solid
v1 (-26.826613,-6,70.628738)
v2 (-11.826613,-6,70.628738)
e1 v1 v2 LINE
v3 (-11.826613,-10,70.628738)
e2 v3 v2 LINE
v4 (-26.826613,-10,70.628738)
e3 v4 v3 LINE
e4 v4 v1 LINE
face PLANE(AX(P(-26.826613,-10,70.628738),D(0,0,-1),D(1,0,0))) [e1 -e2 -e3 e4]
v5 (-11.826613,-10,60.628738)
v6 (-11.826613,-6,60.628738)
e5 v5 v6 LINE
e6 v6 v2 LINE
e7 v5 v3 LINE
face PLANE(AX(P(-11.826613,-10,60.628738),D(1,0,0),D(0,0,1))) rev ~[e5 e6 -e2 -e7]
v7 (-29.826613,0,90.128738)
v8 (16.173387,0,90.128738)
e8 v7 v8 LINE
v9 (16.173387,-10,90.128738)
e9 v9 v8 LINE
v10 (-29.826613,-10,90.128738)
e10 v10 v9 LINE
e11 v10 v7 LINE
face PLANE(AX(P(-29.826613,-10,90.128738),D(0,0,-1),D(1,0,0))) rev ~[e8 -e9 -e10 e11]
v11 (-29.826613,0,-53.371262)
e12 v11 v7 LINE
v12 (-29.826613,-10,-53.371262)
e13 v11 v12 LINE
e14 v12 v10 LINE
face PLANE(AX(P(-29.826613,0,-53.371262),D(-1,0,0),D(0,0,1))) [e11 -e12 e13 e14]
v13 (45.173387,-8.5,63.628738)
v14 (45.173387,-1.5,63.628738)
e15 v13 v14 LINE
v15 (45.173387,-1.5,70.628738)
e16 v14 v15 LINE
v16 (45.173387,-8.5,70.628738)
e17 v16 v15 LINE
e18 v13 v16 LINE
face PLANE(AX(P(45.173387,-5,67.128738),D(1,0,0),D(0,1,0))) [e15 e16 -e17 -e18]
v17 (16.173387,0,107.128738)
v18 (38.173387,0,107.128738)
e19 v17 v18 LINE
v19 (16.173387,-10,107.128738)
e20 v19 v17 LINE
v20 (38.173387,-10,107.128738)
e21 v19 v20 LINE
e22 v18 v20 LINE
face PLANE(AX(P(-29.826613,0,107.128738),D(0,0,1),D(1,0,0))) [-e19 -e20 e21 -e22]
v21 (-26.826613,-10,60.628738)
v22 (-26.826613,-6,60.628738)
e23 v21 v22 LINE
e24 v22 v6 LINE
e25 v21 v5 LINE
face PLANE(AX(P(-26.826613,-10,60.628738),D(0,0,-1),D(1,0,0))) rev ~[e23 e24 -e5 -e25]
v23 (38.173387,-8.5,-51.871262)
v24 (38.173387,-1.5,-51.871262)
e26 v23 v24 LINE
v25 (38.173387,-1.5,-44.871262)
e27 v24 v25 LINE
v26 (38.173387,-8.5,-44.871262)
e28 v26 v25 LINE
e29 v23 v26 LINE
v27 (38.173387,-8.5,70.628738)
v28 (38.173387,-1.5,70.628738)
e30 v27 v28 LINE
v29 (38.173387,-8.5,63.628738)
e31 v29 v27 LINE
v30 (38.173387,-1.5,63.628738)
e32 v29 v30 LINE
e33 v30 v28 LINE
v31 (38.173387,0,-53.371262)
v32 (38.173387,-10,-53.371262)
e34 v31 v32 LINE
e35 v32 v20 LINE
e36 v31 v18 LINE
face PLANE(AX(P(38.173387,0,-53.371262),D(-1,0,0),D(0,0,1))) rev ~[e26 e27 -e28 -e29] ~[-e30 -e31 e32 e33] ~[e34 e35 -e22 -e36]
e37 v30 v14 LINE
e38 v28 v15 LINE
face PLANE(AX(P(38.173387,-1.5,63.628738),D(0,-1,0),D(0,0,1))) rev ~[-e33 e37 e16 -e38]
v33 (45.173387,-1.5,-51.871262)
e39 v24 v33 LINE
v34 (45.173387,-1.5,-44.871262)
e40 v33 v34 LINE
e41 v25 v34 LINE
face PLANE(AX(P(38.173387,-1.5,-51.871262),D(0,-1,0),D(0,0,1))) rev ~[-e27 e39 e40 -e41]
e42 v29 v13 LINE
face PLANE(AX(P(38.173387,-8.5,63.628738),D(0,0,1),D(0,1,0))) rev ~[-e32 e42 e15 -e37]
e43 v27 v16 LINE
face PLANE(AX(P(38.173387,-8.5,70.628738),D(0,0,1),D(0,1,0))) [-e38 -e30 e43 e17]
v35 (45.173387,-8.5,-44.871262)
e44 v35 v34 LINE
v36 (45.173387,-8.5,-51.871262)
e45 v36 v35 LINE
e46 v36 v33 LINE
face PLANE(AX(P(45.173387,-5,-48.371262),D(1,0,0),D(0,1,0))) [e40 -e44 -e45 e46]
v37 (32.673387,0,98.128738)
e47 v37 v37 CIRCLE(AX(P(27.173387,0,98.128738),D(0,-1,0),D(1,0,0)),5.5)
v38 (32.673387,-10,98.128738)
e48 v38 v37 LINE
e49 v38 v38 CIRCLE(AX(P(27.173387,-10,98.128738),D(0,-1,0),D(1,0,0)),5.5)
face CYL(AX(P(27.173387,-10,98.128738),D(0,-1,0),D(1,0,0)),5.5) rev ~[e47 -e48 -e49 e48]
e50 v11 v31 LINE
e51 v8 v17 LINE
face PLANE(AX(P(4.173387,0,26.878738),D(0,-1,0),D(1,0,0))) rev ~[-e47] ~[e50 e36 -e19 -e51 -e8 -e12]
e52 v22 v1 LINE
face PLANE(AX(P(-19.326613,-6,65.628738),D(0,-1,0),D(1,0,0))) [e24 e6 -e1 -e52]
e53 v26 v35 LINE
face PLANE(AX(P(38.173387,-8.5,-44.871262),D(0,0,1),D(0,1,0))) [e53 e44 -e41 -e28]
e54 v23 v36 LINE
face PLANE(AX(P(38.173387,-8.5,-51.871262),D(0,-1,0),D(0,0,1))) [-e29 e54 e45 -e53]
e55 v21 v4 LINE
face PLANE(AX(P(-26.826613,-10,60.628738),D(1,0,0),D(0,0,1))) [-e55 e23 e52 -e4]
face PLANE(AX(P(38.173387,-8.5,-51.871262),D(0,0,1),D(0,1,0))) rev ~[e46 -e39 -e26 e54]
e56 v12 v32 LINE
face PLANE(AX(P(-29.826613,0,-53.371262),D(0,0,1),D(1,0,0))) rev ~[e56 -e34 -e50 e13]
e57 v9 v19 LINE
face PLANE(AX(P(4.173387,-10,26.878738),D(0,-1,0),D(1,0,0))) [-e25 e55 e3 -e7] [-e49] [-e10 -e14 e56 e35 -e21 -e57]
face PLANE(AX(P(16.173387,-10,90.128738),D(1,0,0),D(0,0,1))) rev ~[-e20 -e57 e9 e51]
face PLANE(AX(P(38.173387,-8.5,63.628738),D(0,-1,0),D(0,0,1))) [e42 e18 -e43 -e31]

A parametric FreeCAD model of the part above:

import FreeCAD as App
import Part
import Sketcher

V = App.Vector
Q = App.Units.Quantity

doc = App.newDocument("Part")
body = doc.addObject("PartDesign::Body", "Body")

sketch1 = body.newObject("Sketcher::SketchObject", "Sketch")
sketch1.AttachmentSupport = (doc.getObject("XZ_Plane"), [""])
sketch1.MapMode = "FlatFace"
sketch1.addGeometry(Part.LineSegment(V(-30, 107, 0), V(-30, -53, 0)), False)
sketch1.addGeometry(Part.LineSegment(V(-30, -53, 0), V(38, -53, 0)), False)
sketch1.addGeometry(Part.LineSegment(V(38, -53, 0), V(38, 107, 0)), False)
sketch1.addGeometry(Part.LineSegment(V(38, 107, 0), V(-30, 107, 0)), False)
sketch1.addConstraint(Sketcher.Constraint("Coincident", 0, 2, 1, 1))
sketch1.addConstraint(Sketcher.Constraint("Coincident", 1, 2, 2, 1))
sketch1.addConstraint(Sketcher.Constraint("Coincident", 2, 2, 3, 1))
sketch1.addConstraint(Sketcher.Constraint("Coincident", 3, 2, 0, 1))
sketch1.addConstraint(Sketcher.Constraint("Vertical", 0))
sketch1.addConstraint(Sketcher.Constraint("Horizontal", 1))
sketch1.addConstraint(Sketcher.Constraint("Vertical", 2))
sketch1.addConstraint(Sketcher.Constraint("Horizontal", 3))
sketch1.addConstraint(Sketcher.Constraint("DistanceX", 1, 1, 1, 2, Q("68 mm")))
sketch1.addConstraint(Sketcher.Constraint("DistanceY", 0, 2, 0, 1, Q("160.5 mm")))
sketch1.addConstraint(Sketcher.Constraint("DistanceY", -1, 1, 2, 2, Q("107.128738 mm")))
sketch1.addConstraint(Sketcher.Constraint("DistanceX", 0, 2, -1, 1, Q("29.826613 mm")))
pad1 = body.newObject("PartDesign::Pad", "Pad")
pad1.Profile = sketch1
pad1.Length = 10

sketch2 = body.newObject("Sketcher::SketchObject", "Sketch001")
sketch2.AttachmentSupport = (doc.getObject("XZ_Plane"), [""])
sketch2.MapMode = "FlatFace"
sketch2.AttachmentOffset = App.Placement(V(0, 0, 10), App.Rotation())
sketch2.addGeometry(Part.LineSegment(V(-30, 107, 0), V(-30, 90, 0)), False)
sketch2.addGeometry(Part.LineSegment(V(-30, 90, 0), V(16, 90, 0)), False)
sketch2.addGeometry(Part.LineSegment(V(16, 90, 0), V(16, 107, 0)), False)
sketch2.addGeometry(Part.LineSegment(V(16, 107, 0), V(-30, 107, 0)), False)
sketch2.addConstraint(Sketcher.Constraint("Coincident", 0, 2, 1, 1))
sketch2.addConstraint(Sketcher.Constraint("Coincident", 1, 2, 2, 1))
sketch2.addConstraint(Sketcher.Constraint("Coincident", 2, 2, 3, 1))
sketch2.addConstraint(Sketcher.Constraint("Coincident", 3, 2, 0, 1))
sketch2.addConstraint(Sketcher.Constraint("Vertical", 0))
sketch2.addConstraint(Sketcher.Constraint("Horizontal", 1))
sketch2.addConstraint(Sketcher.Constraint("Vertical", 2))
sketch2.addConstraint(Sketcher.Constraint("Horizontal", 3))
sketch2.addConstraint(Sketcher.Constraint("DistanceX", 1, 1, 1, 2, Q("46 mm")))
sketch2.addConstraint(Sketcher.Constraint("DistanceY", 0, 2, 0, 1, Q("17 mm")))
sketch2.addConstraint(Sketcher.Constraint("DistanceY", -1, 1, 0, 2, Q("90.128738 mm")))
sketch2.addConstraint(Sketcher.Constraint("DistanceX", 0, 2, -1, 1, Q("29.826613 mm")))
pocket1 = body.newObject("PartDesign::Pocket", "Pocket")
pocket1.Profile = sketch2
pocket1.Length = 25

sketch3 = body.newObject("Sketcher::SketchObject", "Sketch002")
sketch3.AttachmentSupport = (doc.getObject("XZ_Plane"), [""])
sketch3.MapMode = "FlatFace"
sketch3.AttachmentOffset = App.Placement(V(0, 0, 10), App.Rotation())
sketch3.addGeometry(Part.Circle(V(27, 98, 0), V(0, 0, 1), 6), False)
sketch3.addConstraint(Sketcher.Constraint("Diameter", 0, Q("11 mm")))
sketch3.addConstraint(Sketcher.Constraint("DistanceY", -1, 1, 0, 3, Q("98.128738 mm")))
sketch3.addConstraint(Sketcher.Constraint("DistanceX", -1, 1, 0, 3, Q("27.173387 mm")))
pocket2 = body.newObject("PartDesign::Pocket", "Pocket001")
pocket2.Profile = sketch3
pocket2.Length = 25

sketch4 = body.newObject("Sketcher::SketchObject", "Sketch003")
sketch4.AttachmentSupport = (doc.getObject("XZ_Plane"), [""])
sketch4.MapMode = "FlatFace"
sketch4.AttachmentOffset = App.Placement(V(0, 0, 10), App.Rotation())
sketch4.addGeometry(Part.LineSegment(V(-27, 71, 0), V(-27, 61, 0)), False)
sketch4.addGeometry(Part.LineSegment(V(-27, 61, 0), V(-12, 61, 0)), False)
sketch4.addGeometry(Part.LineSegment(V(-12, 61, 0), V(-12, 71, 0)), False)
sketch4.addGeometry(Part.LineSegment(V(-12, 71, 0), V(-27, 71, 0)), False)
sketch4.addConstraint(Sketcher.Constraint("Coincident", 0, 2, 1, 1))
sketch4.addConstraint(Sketcher.Constraint("Coincident", 1, 2, 2, 1))
sketch4.addConstraint(Sketcher.Constraint("Coincident", 2, 2, 3, 1))
sketch4.addConstraint(Sketcher.Constraint("Coincident", 3, 2, 0, 1))
sketch4.addConstraint(Sketcher.Constraint("Vertical", 0))
sketch4.addConstraint(Sketcher.Constraint("Horizontal", 1))
sketch4.addConstraint(Sketcher.Constraint("Vertical", 2))
sketch4.addConstraint(Sketcher.Constraint("Horizontal", 3))
sketch4.addConstraint(Sketcher.Constraint("DistanceX", 1, 1, 1, 2, Q("15 mm")))
sketch4.addConstraint(Sketcher.Constraint("DistanceY", 0, 2, 0, 1, Q("10 mm")))
sketch4.addConstraint(Sketcher.Constraint("DistanceY", -1, 1, 2, 2, Q("70.628738 mm")))
sketch4.addConstraint(Sketcher.Constraint("DistanceX", 0, 2, -1, 1, Q("26.826613 mm")))
pocket3 = body.newObject("PartDesign::Pocket", "Pocket002")
pocket3.Profile = sketch4
pocket3.Length = 4

sketch5 = body.newObject("Sketcher::SketchObject", "Sketch004")
sketch5.AttachmentSupport = (doc.getObject("YZ_Plane"), [""])
sketch5.MapMode = "FlatFace"
sketch5.AttachmentOffset = App.Placement(V(0, 0, 38.173387), App.Rotation())
sketch5.addGeometry(Part.LineSegment(V(-8, -45, 0), V(-8, -52, 0)), False)
sketch5.addGeometry(Part.LineSegment(V(-8, -52, 0), V(-2, -52, 0)), False)
sketch5.addGeometry(Part.LineSegment(V(-2, -52, 0), V(-2, -45, 0)), False)
sketch5.addGeometry(Part.LineSegment(V(-2, -45, 0), V(-8, -45, 0)), False)
sketch5.addGeometry(Part.LineSegment(V(-8, 71, 0), V(-8, 64, 0)), False)
sketch5.addGeometry(Part.LineSegment(V(-8, 64, 0), V(-2, 64, 0)), False)
sketch5.addGeometry(Part.LineSegment(V(-2, 64, 0), V(-2, 71, 0)), False)
sketch5.addGeometry(Part.LineSegment(V(-2, 71, 0), V(-8, 71, 0)), False)
sketch5.addConstraint(Sketcher.Constraint("Coincident", 0, 2, 1, 1))
sketch5.addConstraint(Sketcher.Constraint("Coincident", 1, 2, 2, 1))
sketch5.addConstraint(Sketcher.Constraint("Coincident", 2, 2, 3, 1))
sketch5.addConstraint(Sketcher.Constraint("Coincident", 3, 2, 0, 1))
sketch5.addConstraint(Sketcher.Constraint("Coincident", 4, 2, 5, 1))
sketch5.addConstraint(Sketcher.Constraint("Coincident", 5, 2, 6, 1))
sketch5.addConstraint(Sketcher.Constraint("Coincident", 6, 2, 7, 1))
sketch5.addConstraint(Sketcher.Constraint("Coincident", 7, 2, 4, 1))
sketch5.addConstraint(Sketcher.Constraint("Vertical", 0))
sketch5.addConstraint(Sketcher.Constraint("Horizontal", 1))
sketch5.addConstraint(Sketcher.Constraint("Vertical", 2))
sketch5.addConstraint(Sketcher.Constraint("Horizontal", 3))
sketch5.addConstraint(Sketcher.Constraint("Vertical", 4))
sketch5.addConstraint(Sketcher.Constraint("Horizontal", 5))
sketch5.addConstraint(Sketcher.Constraint("Vertical", 6))
sketch5.addConstraint(Sketcher.Constraint("Horizontal", 7))
sketch5.addConstraint(Sketcher.Constraint("Vertical", 3, 2, 4, 2))
sketch5.addConstraint(Sketcher.Constraint("Vertical", 2, 2, 5, 2))
sketch5.addConstraint(Sketcher.Constraint("Equal", 7, 0))
sketch5.addConstraint(Sketcher.Constraint("Equal", 2, 4))
sketch5.addConstraint(Sketcher.Constraint("DistanceX", 1, 1, 1, 2, Q("7 mm")))
sketch5.addConstraint(Sketcher.Constraint("DistanceX", 0, 2, -1, 1, Q("8.5 mm")))
sketch5.addConstraint(Sketcher.Constraint("DistanceY", 3, 2, 4, 2, Q("108.5 mm")))
sketch5.addConstraint(Sketcher.Constraint("DistanceY", -1, 1, 6, 2, Q("70.628738 mm")))
pad2 = body.newObject("PartDesign::Pad", "Pad001")
pad2.Profile = sketch5
pad2.Length = 7

doc.recompute()
